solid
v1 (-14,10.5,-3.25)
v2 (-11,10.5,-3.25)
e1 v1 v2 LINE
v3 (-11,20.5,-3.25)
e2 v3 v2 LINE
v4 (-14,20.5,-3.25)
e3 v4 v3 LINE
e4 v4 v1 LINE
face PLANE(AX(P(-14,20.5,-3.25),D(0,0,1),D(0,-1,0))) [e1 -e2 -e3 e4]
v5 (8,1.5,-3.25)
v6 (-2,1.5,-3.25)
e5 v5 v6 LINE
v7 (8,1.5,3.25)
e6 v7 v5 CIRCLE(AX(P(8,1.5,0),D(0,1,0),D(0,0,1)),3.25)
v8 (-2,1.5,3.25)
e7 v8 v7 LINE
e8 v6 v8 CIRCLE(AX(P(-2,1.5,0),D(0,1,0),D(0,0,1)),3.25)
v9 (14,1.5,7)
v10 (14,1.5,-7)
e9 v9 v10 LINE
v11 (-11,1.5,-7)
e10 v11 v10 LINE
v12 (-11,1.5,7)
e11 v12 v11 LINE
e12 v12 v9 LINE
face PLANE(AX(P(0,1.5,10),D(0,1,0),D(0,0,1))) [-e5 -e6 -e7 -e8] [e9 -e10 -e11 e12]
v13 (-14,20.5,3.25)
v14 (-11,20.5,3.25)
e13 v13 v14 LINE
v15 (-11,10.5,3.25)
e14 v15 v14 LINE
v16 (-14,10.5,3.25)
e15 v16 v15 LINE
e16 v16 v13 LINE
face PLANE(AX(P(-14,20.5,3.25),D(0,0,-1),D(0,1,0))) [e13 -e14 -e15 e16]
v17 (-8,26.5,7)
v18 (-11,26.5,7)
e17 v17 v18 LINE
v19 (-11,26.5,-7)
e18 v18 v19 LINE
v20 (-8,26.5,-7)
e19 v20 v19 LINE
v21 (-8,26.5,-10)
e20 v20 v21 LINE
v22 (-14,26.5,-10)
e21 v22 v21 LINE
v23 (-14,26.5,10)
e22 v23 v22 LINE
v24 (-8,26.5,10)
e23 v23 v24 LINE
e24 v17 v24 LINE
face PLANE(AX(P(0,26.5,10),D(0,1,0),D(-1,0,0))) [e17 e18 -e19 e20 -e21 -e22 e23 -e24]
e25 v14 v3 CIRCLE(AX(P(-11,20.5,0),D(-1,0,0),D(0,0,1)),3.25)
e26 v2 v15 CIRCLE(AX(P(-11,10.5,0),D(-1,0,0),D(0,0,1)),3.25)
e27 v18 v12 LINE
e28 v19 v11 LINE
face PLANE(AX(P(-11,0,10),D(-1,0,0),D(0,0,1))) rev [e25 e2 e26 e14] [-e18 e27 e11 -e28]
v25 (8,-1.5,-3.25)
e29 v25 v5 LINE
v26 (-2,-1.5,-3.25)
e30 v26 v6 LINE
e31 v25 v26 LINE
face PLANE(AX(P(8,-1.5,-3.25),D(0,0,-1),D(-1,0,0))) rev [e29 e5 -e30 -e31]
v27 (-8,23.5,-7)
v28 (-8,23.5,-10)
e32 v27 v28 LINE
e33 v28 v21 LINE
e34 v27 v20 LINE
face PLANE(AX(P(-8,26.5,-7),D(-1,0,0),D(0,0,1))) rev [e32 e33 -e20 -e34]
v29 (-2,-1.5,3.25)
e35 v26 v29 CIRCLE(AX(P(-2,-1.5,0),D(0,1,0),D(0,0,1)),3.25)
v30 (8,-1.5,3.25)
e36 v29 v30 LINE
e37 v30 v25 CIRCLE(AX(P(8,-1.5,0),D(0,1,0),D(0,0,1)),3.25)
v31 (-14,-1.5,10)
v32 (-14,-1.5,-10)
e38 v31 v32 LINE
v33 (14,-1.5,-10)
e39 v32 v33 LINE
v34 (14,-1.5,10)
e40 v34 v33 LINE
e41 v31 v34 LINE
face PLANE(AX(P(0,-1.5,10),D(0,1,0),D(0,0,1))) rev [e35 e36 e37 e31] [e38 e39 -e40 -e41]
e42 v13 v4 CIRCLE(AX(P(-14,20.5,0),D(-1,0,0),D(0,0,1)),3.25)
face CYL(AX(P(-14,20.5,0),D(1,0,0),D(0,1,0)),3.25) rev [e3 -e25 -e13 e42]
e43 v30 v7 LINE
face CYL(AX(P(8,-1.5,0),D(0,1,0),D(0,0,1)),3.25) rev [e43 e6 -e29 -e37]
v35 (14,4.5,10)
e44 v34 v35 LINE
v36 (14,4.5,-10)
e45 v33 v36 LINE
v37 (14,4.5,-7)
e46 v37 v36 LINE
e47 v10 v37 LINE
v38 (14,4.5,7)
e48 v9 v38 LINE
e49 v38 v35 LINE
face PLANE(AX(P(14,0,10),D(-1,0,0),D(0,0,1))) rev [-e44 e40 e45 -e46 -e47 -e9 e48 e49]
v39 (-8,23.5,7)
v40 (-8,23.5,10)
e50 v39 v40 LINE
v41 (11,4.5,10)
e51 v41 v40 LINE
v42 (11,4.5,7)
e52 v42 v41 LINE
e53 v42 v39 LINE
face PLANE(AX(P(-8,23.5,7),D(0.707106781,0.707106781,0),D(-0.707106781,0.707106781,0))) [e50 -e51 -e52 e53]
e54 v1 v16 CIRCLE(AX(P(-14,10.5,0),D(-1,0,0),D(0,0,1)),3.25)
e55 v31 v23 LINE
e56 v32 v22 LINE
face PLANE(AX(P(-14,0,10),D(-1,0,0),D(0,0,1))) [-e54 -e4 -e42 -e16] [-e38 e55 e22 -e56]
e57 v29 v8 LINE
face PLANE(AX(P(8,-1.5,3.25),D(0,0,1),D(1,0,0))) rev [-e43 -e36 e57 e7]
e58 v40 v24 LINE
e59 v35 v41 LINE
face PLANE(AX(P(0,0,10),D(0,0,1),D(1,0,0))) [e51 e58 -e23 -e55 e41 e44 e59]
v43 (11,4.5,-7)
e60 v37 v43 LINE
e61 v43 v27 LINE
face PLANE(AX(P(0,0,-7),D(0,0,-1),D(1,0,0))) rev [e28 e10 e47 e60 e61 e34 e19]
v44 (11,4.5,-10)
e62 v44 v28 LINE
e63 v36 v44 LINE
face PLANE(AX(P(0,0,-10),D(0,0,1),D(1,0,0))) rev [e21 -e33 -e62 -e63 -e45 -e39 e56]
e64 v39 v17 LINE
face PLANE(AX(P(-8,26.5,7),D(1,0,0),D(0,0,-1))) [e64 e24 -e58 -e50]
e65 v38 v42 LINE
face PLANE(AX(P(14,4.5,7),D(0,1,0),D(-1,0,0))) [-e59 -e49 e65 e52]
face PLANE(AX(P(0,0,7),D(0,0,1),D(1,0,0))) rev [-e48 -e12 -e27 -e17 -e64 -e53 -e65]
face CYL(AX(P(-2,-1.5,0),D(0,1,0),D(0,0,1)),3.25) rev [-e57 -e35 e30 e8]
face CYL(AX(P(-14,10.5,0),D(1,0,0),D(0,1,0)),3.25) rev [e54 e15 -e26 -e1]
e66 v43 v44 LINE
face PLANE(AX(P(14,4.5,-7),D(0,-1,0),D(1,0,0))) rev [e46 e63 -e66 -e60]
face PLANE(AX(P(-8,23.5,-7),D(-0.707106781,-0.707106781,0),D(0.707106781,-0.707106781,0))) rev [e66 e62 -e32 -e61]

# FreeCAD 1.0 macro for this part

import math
import FreeCAD as App
import Part
import Sketcher


def add_polygon(sketch, points):
    """Adds a closed chain of lines whose ends are joined by coincident constraints."""
    first, n = sketch.GeometryCount, len(points)
    for a, b in zip(points, points[1:] + points[:1]):
        sketch.addGeometry(Part.LineSegment(App.Vector(*a, 0), App.Vector(*b, 0)), False)
    for i in range(n):
        sketch.addConstraint(Sketcher.Constraint("Coincident", first + i, 2, first + (i + 1) % n, 1))

doc = App.newDocument("Part")
params = doc.addObject("Spreadsheet::Sheet", "Params")
for row, (alias, value) in enumerate([
    ("sketch1_width", "28 mm"),
    ("sketch1_width2", "25 mm"),
    ("pad1_length", "20 mm"),
    ("sketch2_width", "10 mm"),
    ("sketch2_radius", "3.25 mm"),
    ("sketch3_width", "3 mm"),
    ("sketch3_width2", "25 mm"),
    ("pad2_length", "3 mm"),
], start=1):
    params.set(f"A{row}", alias)
    params.set(f"B{row}", "=" + value)
    params.setAlias(f"B{row}", alias)

body = doc.addObject("PartDesign::Body", "Body")

sketch1 = doc.addObject("Sketcher::SketchObject", "Sketch")
body.addObject(sketch1)
sketch1.AttachmentSupport = (doc.XY_Plane, [""])
sketch1.MapMode = "FlatFace"
add_polygon(sketch1, [(-14, -1.5), (14, -1.5), (14, 1.5), (-11, 1.5), (-11, 26.5), (-14, 26.5)])
sketch1.addConstraint(Sketcher.Constraint("Horizontal", 0))
sketch1.addConstraint(Sketcher.Constraint("Vertical", 1))
sketch1.addConstraint(Sketcher.Constraint("Horizontal", 2))
sketch1.addConstraint(Sketcher.Constraint("Vertical", 3))
sketch1.addConstraint(Sketcher.Constraint("Horizontal", 4))
sketch1.addConstraint(Sketcher.Constraint("Vertical", 5))
sketch1.addConstraint(Sketcher.Constraint("Symmetric", 1, 2, 5, 2, -1, 1))
sketch1.addConstraint(Sketcher.Constraint("Equal", 4, 1))
sketch1.addConstraint(Sketcher.Constraint("Equal", 2, 3))
sketch1.addConstraint(Sketcher.Constraint("DistanceX", 0, 1, 0, 2, 28.0))
sketch1.addConstraint(Sketcher.Constraint("DistanceX", 2, 2, 2, 1, 25.0))
sketch1.setExpression("Constraints[15]", "Params.sketch1_width")
sketch1.setExpression("Constraints[16]", "Params.sketch1_width2")
pad1 = doc.addObject("PartDesign::Pad", "Pad")
body.addObject(pad1)
pad1.Profile = sketch1
pad1.setExpression("Length", "Params.pad1_length")
pad1.Midplane = True

sketch2 = doc.addObject("Sketcher::SketchObject", "Sketch001")
body.addObject(sketch2)
sketch2.AttachmentSupport = (doc.XZ_Plane, [""])
sketch2.MapMode = "FlatFace"
sketch2.AttachmentOffset = App.Placement(App.Vector(0, 0, -1.5), App.Rotation())
sketch2.addGeometry(Part.LineSegment(App.Vector(-2, 3.2, 0), App.Vector(8, 3.2, 0)), False)
sketch2.addGeometry(Part.ArcOfCircle(Part.Circle(App.Vector(8, 0, 0), App.Vector(0, 0, 1), 3.2), math.radians(-90), math.radians(90)), False)
sketch2.addGeometry(Part.LineSegment(App.Vector(8, -3.2, 0), App.Vector(-2, -3.2, 0)), False)
sketch2.addGeometry(Part.ArcOfCircle(Part.Circle(App.Vector(-2, 0, 0), App.Vector(0, 0, 1), 3.2), math.radians(90), math.radians(270)), False)
sketch2.addConstraint(Sketcher.Constraint("Tangent", 0, 2, 1, 2))
sketch2.addConstraint(Sketcher.Constraint("Tangent", 1, 1, 2, 1))
sketch2.addConstraint(Sketcher.Constraint("Tangent", 2, 2, 3, 2))
sketch2.addConstraint(Sketcher.Constraint("Tangent", 3, 1, 0, 1))
sketch2.addConstraint(Sketcher.Constraint("Horizontal", 0))
sketch2.addConstraint(Sketcher.Constraint("Horizontal", 2))
sketch2.addConstraint(Sketcher.Constraint("PointOnObject", 1, 3, -1))
sketch2.addConstraint(Sketcher.Constraint("DistanceX", 0, 1, 0, 2, 10.0))
sketch2.addConstraint(Sketcher.Constraint("Radius", 1, 3.25))
sketch2.addConstraint(Sketcher.Constraint("DistanceX", -1, 1, 1, 3, 8.0))
sketch2.setExpression("Constraints[7]", "Params.sketch2_width")
sketch2.setExpression("Constraints[8]", "Params.sketch2_radius")
pocket1 = doc.addObject("PartDesign::Pocket", "Pocket")
body.addObject(pocket1)
pocket1.Profile = sketch2
pocket1.Type = "ThroughAll"
pocket1.Reversed = True
doc.recompute()

datumplane = doc.addObject("PartDesign::Plane", "DatumPlane")
body.addObject(datumplane)
datumplane.Placement = App.Placement(App.Vector(-6.25, 6.25, 0), App.Rotation(App.Vector(0.707106781, 0.707106781, 0), App.Vector(0, 0, -1), App.Vector(-0.707106781, 0.707106781, 0), "ZXY"))
mirrored = doc.addObject("PartDesign::Mirrored", "Mirrored")
body.addObject(mirrored)
mirrored.Originals = [pocket1]
mirrored.MirrorPlane = (datumplane, [""])
body.Tip = mirrored

sketch3 = doc.addObject("Sketcher::SketchObject", "Sketch002")
body.addObject(sketch3)
sketch3.AttachmentSupport = (doc.XY_Plane, [""])
sketch3.MapMode = "FlatFace"
sketch3.AttachmentOffset = App.Placement(App.Vector(0, 0, 10), App.Rotation())
add_polygon(sketch3, [(-8, 26.5), (-11, 26.5), (-11, 1.5), (14, 1.5), (14, 4.5), (11, 4.5), (-8, 23.5)])
sketch3.addConstraint(Sketcher.Constraint("Horizontal", 0))
sketch3.addConstraint(Sketcher.Constraint("Vertical", 1))
sketch3.addConstraint(Sketcher.Constraint("Horizontal", 2))
sketch3.addConstraint(Sketcher.Constraint("Vertical", 3))
sketch3.addConstraint(Sketcher.Constraint("Horizontal", 4))
sketch3.addConstraint(Sketcher.Constraint("Vertical", 6))
sketch3.addConstraint(Sketcher.Constraint("Equal", 0, 4))
sketch3.addConstraint(Sketcher.Constraint("Equal", 2, 1))
sketch3.addConstraint(Sketcher.Constraint("Equal", 4, 3))
sketch3.addConstraint(Sketcher.Constraint("Equal", 3, 6))
sketch3.addConstraint(Sketcher.Constraint("DistanceX", 0, 2, 0, 1, 3.0))
sketch3.addConstraint(Sketcher.Constraint("DistanceX", 2, 1, 2, 2, 25.0))
sketch3.addConstraint(Sketcher.Constraint("DistanceX", 0, 2, -1, 1, 11.0))
sketch3.addConstraint(Sketcher.Constraint("DistanceY", -1, 1, 0, 2, 26.5))
sketch3.setExpression("Constraints[17]", "Params.sketch3_width")
sketch3.setExpression("Constraints[18]", "Params.sketch3_width2")
pad2 = doc.addObject("PartDesign::Pad", "Pad001")
body.addObject(pad2)
pad2.Profile = sketch3
pad2.setExpression("Length", "Params.pad2_length")
pad2.Reversed = True
doc.recompute()

mirrored2 = doc.addObject("PartDesign::Mirrored", "Mirrored001")
body.addObject(mirrored2)
mirrored2.Originals = [pad2]
mirrored2.MirrorPlane = (doc.XY_Plane, [""])
body.Tip = mirrored2

doc.recompute()
